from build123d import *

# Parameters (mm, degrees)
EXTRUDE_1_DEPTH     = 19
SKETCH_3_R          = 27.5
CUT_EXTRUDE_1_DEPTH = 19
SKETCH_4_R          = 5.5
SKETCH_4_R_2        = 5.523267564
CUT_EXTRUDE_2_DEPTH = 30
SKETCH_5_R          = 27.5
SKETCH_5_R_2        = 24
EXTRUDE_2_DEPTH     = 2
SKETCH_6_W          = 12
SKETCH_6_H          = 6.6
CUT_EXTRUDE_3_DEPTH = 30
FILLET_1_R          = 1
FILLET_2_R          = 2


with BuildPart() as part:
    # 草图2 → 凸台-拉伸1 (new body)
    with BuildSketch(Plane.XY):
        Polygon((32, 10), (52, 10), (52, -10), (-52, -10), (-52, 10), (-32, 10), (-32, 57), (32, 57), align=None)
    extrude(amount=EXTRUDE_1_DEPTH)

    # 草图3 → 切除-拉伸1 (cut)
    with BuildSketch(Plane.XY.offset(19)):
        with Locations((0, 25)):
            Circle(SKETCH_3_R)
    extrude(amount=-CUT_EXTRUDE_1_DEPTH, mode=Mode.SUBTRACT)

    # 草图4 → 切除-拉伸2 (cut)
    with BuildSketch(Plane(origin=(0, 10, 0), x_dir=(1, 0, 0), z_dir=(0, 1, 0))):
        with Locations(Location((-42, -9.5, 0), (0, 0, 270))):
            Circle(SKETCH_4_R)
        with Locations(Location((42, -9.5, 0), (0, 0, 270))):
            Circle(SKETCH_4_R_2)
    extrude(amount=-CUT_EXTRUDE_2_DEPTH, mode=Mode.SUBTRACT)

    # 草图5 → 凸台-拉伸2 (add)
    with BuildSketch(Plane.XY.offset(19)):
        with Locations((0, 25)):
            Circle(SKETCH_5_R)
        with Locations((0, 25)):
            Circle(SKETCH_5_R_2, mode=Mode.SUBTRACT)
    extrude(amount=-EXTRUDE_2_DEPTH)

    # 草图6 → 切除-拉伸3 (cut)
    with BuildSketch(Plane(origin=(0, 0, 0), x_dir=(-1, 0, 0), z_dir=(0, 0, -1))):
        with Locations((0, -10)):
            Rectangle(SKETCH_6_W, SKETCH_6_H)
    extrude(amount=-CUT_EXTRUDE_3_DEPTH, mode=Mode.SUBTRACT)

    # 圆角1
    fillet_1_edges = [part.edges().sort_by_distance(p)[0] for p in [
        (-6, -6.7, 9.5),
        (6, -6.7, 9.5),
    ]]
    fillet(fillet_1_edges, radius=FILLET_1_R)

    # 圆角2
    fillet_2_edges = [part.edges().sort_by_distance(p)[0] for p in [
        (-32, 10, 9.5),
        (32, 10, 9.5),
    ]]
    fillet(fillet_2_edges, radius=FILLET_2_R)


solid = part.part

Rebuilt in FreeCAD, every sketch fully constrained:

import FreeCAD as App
import Part
import Sketcher

V = App.Vector


def edges_at(feature, points):
    """Names of the edges that pass closest to the given points."""
    edges = feature.Shape.Edges
    near = lambda p: min(range(len(edges)), key=lambda i: edges[i].distToShape(Part.Vertex(*p))[0])
    return sorted({f"Edge{near(p) + 1}" for p in points})

doc = App.newDocument("Part")
params = doc.addObject("Spreadsheet::Sheet", "Params")
for row, (alias, value) in enumerate([
    ("sketch1_width", "20 mm"),
    ("sketch1_width2", "64 mm"),
    ("sketch1_height", "47 mm"),
    ("pad1_length", "19 mm"),
    ("sketch2_diameter", "55 mm"),
    ("pocket1_length", "19 mm"),
    ("sketch3_diameter", "11 mm"),
    ("pocket2_length", "30 mm"),
    ("sketch4_diameter", "55 mm"),
    ("sketch4_diameter2", "48 mm"),
    ("pad2_length", "2 mm"),
    ("sketch5_width", "12 mm"),
    ("sketch5_height", "6.6 mm"),
    ("pocket3_length", "30 mm"),
    ("fillet_radius", "1 mm"),
    ("fillet2_radius", "2 mm"),
], start=1):
    params.set(f"A{row}", alias)
    params.set(f"B{row}", "=" + value)
    params.setAlias(f"B{row}", alias)

body = doc.addObject("PartDesign::Body", "Body")

# Sketch on XY plane
sketch1 = body.newObject("Sketcher::SketchObject", "Sketch")
sketch1.AttachmentSupport = (doc.getObject("XY_Plane"), [""])
sketch1.MapMode = "FlatFace"
sketch1.addGeometry(Part.LineSegment(V(52, 10, 0), V(32, 10, 0)), False)
sketch1.addGeometry(Part.LineSegment(V(32, 10, 0), V(32, 57, 0)), False)
sketch1.addGeometry(Part.LineSegment(V(32, 57, 0), V(-32, 57, 0)), False)
sketch1.addGeometry(Part.LineSegment(V(-32, 57, 0), V(-32, 10, 0)), False)
sketch1.addGeometry(Part.LineSegment(V(-32, 10, 0), V(-52, 10, 0)), False)
sketch1.addGeometry(Part.LineSegment(V(-52, 10, 0), V(-52, -10, 0)), False)
sketch1.addGeometry(Part.LineSegment(V(-52, -10, 0), V(52, -10, 0)), False)
sketch1.addGeometry(Part.LineSegment(V(52, -10, 0), V(52, 10, 0)), False)
sketch1.addConstraint(Sketcher.Constraint("Coincident", 0, 2, 1, 1))
sketch1.addConstraint(Sketcher.Constraint("Coincident", 1, 2, 2, 1))
sketch1.addConstraint(Sketcher.Constraint("Coincident", 2, 2, 3, 1))
sketch1.addConstraint(Sketcher.Constraint("Coincident", 3, 2, 4, 1))
sketch1.addConstraint(Sketcher.Constraint("Coincident", 4, 2, 5, 1))
sketch1.addConstraint(Sketcher.Constraint("Coincident", 5, 2, 6, 1))
sketch1.addConstraint(Sketcher.Constraint("Coincident", 6, 2, 7, 1))
sketch1.addConstraint(Sketcher.Constraint("Coincident", 7, 2, 0, 1))
sketch1.addConstraint(Sketcher.Constraint("Horizontal", 0))
sketch1.addConstraint(Sketcher.Constraint("Vertical", 1))
sketch1.addConstraint(Sketcher.Constraint("Horizontal", 2))
sketch1.addConstraint(Sketcher.Constraint("Vertical", 3))
sketch1.addConstraint(Sketcher.Constraint("Horizontal", 4))
sketch1.addConstraint(Sketcher.Constraint("Vertical", 5))
sketch1.addConstraint(Sketcher.Constraint("Horizontal", 6))
sketch1.addConstraint(Sketcher.Constraint("Vertical", 7))
sketch1.addConstraint(Sketcher.Constraint("Symmetric", 4, 2, 6, 2, -1, 1))
sketch1.addConstraint(Sketcher.Constraint("Symmetric", 0, 2, 3, 2, -2))
sketch1.addConstraint(Sketcher.Constraint("Equal", 4, 5))
sketch1.addConstraint(Sketcher.Constraint("DistanceX", 0, 2, 0, 1, 20.0))
sketch1.addConstraint(Sketcher.Constraint("DistanceX", 2, 2, 2, 1, 64.0))
sketch1.addConstraint(Sketcher.Constraint("DistanceY", 1, 1, 1, 2, 47.0))
sketch1.setExpression("Constraints[19]", "Params.sketch1_width")
sketch1.setExpression("Constraints[20]", "Params.sketch1_width2")
sketch1.setExpression("Constraints[21]", "Params.sketch1_height")
pad1 = body.newObject("PartDesign::Pad", "Pad")
pad1.Profile = sketch1
pad1.setExpression("Length", "Params.pad1_length")

# Sketch on XY plane
sketch2 = body.newObject("Sketcher::SketchObject", "Sketch001")
sketch2.AttachmentSupport = (doc.getObject("XY_Plane"), [""])
sketch2.MapMode = "FlatFace"
sketch2.AttachmentOffset = App.Placement(V(0, 0, 19), App.Rotation())
sketch2.addGeometry(Part.Circle(V(0, 25, 0), V(0, 0, 1), 27.5), False)
sketch2.addConstraint(Sketcher.Constraint("PointOnObject", 0, 3, -2))
sketch2.addConstraint(Sketcher.Constraint("Diameter", 0, 55.0))
sketch2.addConstraint(Sketcher.Constraint("DistanceY", -1, 1, 0, 3, 25.0))
sketch2.setExpression("Constraints[1]", "Params.sketch2_diameter")
pocket1 = body.newObject("PartDesign::Pocket", "Pocket")
pocket1.Profile = sketch2
pocket1.setExpression("Length", "Params.pocket1_length")

# Sketch on XZ plane
sketch3 = body.newObject("Sketcher::SketchObject", "Sketch002")
sketch3.AttachmentSupport = (doc.getObject("XZ_Plane"), [""])
sketch3.MapMode = "FlatFace"
sketch3.AttachmentOffset = App.Placement(V(0, 0, -10), App.Rotation())
sketch3.addGeometry(Part.Circle(V(-42, 9.5, 0), V(0, 0, 1), 5.5), False)
sketch3.addGeometry(Part.Circle(V(42, 9.5, 0), V(0, 0, 1), 5.523268), False)
sketch3.addConstraint(Sketcher.Constraint("Symmetric", 0, 3, 1, 3, -2))
sketch3.addConstraint(Sketcher.Constraint("Diameter", 0, 11.0))
sketch3.addConstraint(Sketcher.Constraint("DistanceX", 0, 3, -1, 1, 42.0))
sketch3.addConstraint(Sketcher.Constraint("DistanceY", -1, 1, 0, 3, 9.5))
sketch3.addConstraint(Sketcher.Constraint("Diameter", 1, 11.046535))
sketch3.setExpression("Constraints[1]", "Params.sketch3_diameter")
pocket2 = body.newObject("PartDesign::Pocket", "Pocket001")
pocket2.Profile = sketch3
pocket2.setExpression("Length", "Params.pocket2_length")
pocket2.Reversed = True

# Sketch on XY plane
sketch4 = body.newObject("Sketcher::SketchObject", "Sketch003")
sketch4.AttachmentSupport = (doc.getObject("XY_Plane"), [""])
sketch4.MapMode = "FlatFace"
sketch4.AttachmentOffset = App.Placement(V(0, 0, 19), App.Rotation())
sketch4.addGeometry(Part.Circle(V(0, 25, 0), V(0, 0, 1), 27.5), False)
sketch4.addGeometry(Part.Circle(V(0, 25, 0), V(0, 0, 1), 24), False)
sketch4.addConstraint(Sketcher.Constraint("Coincident", 1, 3, 0, 3))
sketch4.addConstraint(Sketcher.Constraint("PointOnObject", 0, 3, -2))
sketch4.addConstraint(Sketcher.Constraint("Diameter", 0, 55.0))
sketch4.addConstraint(Sketcher.Constraint("Diameter", 1, 48.0))
sketch4.addConstraint(Sketcher.Constraint("DistanceY", -1, 1, 0, 3, 25.0))
sketch4.setExpression("Constraints[2]", "Params.sketch4_diameter")
sketch4.setExpression("Constraints[3]", "Params.sketch4_diameter2")
pad2 = body.newObject("PartDesign::Pad", "Pad001")
pad2.Profile = sketch4
pad2.setExpression("Length", "Params.pad2_length")
pad2.Reversed = True

# Sketch on XY plane
sketch5 = body.newObject("Sketcher::SketchObject", "Sketch004")
sketch5.AttachmentSupport = (doc.getObject("XY_Plane"), [""])
sketch5.MapMode = "FlatFace"
sketch5.addGeometry(Part.LineSegment(V(6, -6.7, 0), V(6, -13.3, 0)), False)
sketch5.addGeometry(Part.LineSegment(V(6, -13.3, 0), V(-6, -13.3, 0)), False)
sketch5.addGeometry(Part.LineSegment(V(-6, -13.3, 0), V(-6, -6.7, 0)), False)
sketch5.addGeometry(Part.LineSegment(V(-6, -6.7, 0), V(6, -6.7, 0)), False)
sketch5.addConstraint(Sketcher.Constraint("Coincident", 0, 2, 1, 1))
sketch5.addConstraint(Sketcher.Constraint("Coincident", 1, 2, 2, 1))
sketch5.addConstraint(Sketcher.Constraint("Coincident", 2, 2, 3, 1))
sketch5.addConstraint(Sketcher.Constraint("Coincident", 3, 2, 0, 1))
sketch5.addConstraint(Sketcher.Constraint("Vertical", 0))
sketch5.addConstraint(Sketcher.Constraint("Horizontal", 1))
sketch5.addConstraint(Sketcher.Constraint("Vertical", 2))
sketch5.addConstraint(Sketcher.Constraint("Horizontal", 3))
sketch5.addConstraint(Sketcher.Constraint("DistanceX", 1, 2, 1, 1, 12.0))
sketch5.addConstraint(Sketcher.Constraint("DistanceY", 0, 2, 0, 1, 6.6))
sketch5.addConstraint(Sketcher.Constraint("DistanceX", -1, 1, 0, 2, 6.0))
sketch5.addConstraint(Sketcher.Constraint("DistanceY", 0, 2, -1, 1, 13.3))
sketch5.setExpression("Constraints[8]", "Params.sketch5_width")
sketch5.setExpression("Constraints[9]", "Params.sketch5_height")
pocket3 = body.newObject("PartDesign::Pocket", "Pocket002")
pocket3.Profile = sketch5
pocket3.setExpression("Length", "Params.pocket3_length")
pocket3.Reversed = True
doc.recompute()

fillet = body.newObject("PartDesign::Fillet", "Fillet")
fillet.Base = (pocket3, edges_at(pocket3, [(-6, -6.7, 9.5), (6, -6.7, 9.5)]))
fillet.setExpression("Radius", "Params.fillet_radius")
doc.recompute()

fillet2 = body.newObject("PartDesign::Fillet", "Fillet001")
fillet2.Base = (fillet, edges_at(fillet, [(-32, 10, 9.5), (32, 10, 9.5)]))
fillet2.setExpression("Radius", "Params.fillet2_radius")

doc.recompute()
